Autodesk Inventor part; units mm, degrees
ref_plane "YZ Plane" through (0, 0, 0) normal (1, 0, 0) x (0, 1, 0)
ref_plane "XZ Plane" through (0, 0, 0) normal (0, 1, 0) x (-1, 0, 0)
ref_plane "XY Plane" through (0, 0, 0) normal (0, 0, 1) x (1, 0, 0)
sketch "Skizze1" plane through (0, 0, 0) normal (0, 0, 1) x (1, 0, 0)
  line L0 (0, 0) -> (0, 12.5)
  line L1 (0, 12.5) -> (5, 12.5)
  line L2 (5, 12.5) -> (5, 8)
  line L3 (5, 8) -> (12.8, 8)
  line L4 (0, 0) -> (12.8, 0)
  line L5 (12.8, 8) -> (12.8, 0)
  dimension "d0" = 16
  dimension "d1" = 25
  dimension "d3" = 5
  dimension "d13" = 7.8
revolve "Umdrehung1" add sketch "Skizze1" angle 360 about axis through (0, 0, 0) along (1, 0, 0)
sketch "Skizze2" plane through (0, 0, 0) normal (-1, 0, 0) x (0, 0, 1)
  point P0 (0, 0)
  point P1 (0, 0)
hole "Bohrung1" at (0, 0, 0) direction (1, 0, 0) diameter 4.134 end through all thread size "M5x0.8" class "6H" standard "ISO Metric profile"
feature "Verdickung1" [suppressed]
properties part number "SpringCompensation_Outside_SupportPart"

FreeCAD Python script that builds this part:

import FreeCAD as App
import Part
import Sketcher

V = App.Vector
Q = App.Units.Quantity


def add_polygon(sketch, points):
    """Adds a closed chain of lines whose ends are joined by coincident constraints."""
    first, n = sketch.GeometryCount, len(points)
    for a, b in zip(points, points[1:] + points[:1]):
        sketch.addGeometry(Part.LineSegment(App.Vector(*a, 0), App.Vector(*b, 0)), False)
    for i in range(n):
        sketch.addConstraint(Sketcher.Constraint("Coincident", first + i, 2, first + (i + 1) % n, 1))

doc = App.newDocument("Part")
body = doc.addObject("PartDesign::Body", "Body")

# Sketch on XY plane
sketch1 = body.newObject("Sketcher::SketchObject", "Sketch")
sketch1.AttachmentSupport = (doc.getObject("XY_Plane"), [""])
sketch1.MapMode = "FlatFace"
add_polygon(sketch1, [(0, 12.5), (0, 0), (12.8, 0), (12.8, 8), (5, 8), (5, 12.5)])  # lines 0-5
sketch1.addConstraint(Sketcher.Constraint("Vertical", 0))
sketch1.addConstraint(Sketcher.Constraint("Horizontal", 1))
sketch1.addConstraint(Sketcher.Constraint("Vertical", 2))
sketch1.addConstraint(Sketcher.Constraint("Horizontal", 3))
sketch1.addConstraint(Sketcher.Constraint("Vertical", 4))
sketch1.addConstraint(Sketcher.Constraint("Horizontal", 5))
sketch1.addConstraint(Sketcher.Constraint("Coincident", 0, 2, -1, 1))
sketch1.addConstraint(Sketcher.Constraint("DistanceX", 5, 2, 5, 1, Q("5 mm")))
sketch1.addConstraint(Sketcher.Constraint("DistanceX", 3, 2, 3, 1, Q("7.8 mm")))
sketch1.addConstraint(Sketcher.Constraint("DistanceY", 2, 1, 2, 2, Q("8 mm")))
sketch1.addConstraint(Sketcher.Constraint("DistanceY", 0, 2, 0, 1, Q("12.5 mm")))
revolution = body.newObject("PartDesign::Revolution", "Revolution")
revolution.Profile = sketch1
revolution.ReferenceAxis = (sketch1, ["H_Axis"])
revolution.Angle = 360

# Sketch on YZ plane
sketch2 = body.newObject("Sketcher::SketchObject", "Sketch001")
sketch2.AttachmentSupport = (doc.getObject("YZ_Plane"), [""])
sketch2.MapMode = "FlatFace"
sketch2.addGeometry(Part.Circle(V(0, 0, 0), V(0, 0, 1), 2.1), False)
sketch2.addConstraint(Sketcher.Constraint("Coincident", 0, 3, -1, 1))
sketch2.addConstraint(Sketcher.Constraint("Diameter", 0, Q("4.134 mm")))
doc.recompute()
hole = body.newObject("PartDesign::Hole", "Hole")
hole.Profile = sketch2
hole.ThreadType = "None"
hole.Diameter = 4.134
hole.DepthType = "ThroughAll"
hole.Reversed = True

doc.recompute()
